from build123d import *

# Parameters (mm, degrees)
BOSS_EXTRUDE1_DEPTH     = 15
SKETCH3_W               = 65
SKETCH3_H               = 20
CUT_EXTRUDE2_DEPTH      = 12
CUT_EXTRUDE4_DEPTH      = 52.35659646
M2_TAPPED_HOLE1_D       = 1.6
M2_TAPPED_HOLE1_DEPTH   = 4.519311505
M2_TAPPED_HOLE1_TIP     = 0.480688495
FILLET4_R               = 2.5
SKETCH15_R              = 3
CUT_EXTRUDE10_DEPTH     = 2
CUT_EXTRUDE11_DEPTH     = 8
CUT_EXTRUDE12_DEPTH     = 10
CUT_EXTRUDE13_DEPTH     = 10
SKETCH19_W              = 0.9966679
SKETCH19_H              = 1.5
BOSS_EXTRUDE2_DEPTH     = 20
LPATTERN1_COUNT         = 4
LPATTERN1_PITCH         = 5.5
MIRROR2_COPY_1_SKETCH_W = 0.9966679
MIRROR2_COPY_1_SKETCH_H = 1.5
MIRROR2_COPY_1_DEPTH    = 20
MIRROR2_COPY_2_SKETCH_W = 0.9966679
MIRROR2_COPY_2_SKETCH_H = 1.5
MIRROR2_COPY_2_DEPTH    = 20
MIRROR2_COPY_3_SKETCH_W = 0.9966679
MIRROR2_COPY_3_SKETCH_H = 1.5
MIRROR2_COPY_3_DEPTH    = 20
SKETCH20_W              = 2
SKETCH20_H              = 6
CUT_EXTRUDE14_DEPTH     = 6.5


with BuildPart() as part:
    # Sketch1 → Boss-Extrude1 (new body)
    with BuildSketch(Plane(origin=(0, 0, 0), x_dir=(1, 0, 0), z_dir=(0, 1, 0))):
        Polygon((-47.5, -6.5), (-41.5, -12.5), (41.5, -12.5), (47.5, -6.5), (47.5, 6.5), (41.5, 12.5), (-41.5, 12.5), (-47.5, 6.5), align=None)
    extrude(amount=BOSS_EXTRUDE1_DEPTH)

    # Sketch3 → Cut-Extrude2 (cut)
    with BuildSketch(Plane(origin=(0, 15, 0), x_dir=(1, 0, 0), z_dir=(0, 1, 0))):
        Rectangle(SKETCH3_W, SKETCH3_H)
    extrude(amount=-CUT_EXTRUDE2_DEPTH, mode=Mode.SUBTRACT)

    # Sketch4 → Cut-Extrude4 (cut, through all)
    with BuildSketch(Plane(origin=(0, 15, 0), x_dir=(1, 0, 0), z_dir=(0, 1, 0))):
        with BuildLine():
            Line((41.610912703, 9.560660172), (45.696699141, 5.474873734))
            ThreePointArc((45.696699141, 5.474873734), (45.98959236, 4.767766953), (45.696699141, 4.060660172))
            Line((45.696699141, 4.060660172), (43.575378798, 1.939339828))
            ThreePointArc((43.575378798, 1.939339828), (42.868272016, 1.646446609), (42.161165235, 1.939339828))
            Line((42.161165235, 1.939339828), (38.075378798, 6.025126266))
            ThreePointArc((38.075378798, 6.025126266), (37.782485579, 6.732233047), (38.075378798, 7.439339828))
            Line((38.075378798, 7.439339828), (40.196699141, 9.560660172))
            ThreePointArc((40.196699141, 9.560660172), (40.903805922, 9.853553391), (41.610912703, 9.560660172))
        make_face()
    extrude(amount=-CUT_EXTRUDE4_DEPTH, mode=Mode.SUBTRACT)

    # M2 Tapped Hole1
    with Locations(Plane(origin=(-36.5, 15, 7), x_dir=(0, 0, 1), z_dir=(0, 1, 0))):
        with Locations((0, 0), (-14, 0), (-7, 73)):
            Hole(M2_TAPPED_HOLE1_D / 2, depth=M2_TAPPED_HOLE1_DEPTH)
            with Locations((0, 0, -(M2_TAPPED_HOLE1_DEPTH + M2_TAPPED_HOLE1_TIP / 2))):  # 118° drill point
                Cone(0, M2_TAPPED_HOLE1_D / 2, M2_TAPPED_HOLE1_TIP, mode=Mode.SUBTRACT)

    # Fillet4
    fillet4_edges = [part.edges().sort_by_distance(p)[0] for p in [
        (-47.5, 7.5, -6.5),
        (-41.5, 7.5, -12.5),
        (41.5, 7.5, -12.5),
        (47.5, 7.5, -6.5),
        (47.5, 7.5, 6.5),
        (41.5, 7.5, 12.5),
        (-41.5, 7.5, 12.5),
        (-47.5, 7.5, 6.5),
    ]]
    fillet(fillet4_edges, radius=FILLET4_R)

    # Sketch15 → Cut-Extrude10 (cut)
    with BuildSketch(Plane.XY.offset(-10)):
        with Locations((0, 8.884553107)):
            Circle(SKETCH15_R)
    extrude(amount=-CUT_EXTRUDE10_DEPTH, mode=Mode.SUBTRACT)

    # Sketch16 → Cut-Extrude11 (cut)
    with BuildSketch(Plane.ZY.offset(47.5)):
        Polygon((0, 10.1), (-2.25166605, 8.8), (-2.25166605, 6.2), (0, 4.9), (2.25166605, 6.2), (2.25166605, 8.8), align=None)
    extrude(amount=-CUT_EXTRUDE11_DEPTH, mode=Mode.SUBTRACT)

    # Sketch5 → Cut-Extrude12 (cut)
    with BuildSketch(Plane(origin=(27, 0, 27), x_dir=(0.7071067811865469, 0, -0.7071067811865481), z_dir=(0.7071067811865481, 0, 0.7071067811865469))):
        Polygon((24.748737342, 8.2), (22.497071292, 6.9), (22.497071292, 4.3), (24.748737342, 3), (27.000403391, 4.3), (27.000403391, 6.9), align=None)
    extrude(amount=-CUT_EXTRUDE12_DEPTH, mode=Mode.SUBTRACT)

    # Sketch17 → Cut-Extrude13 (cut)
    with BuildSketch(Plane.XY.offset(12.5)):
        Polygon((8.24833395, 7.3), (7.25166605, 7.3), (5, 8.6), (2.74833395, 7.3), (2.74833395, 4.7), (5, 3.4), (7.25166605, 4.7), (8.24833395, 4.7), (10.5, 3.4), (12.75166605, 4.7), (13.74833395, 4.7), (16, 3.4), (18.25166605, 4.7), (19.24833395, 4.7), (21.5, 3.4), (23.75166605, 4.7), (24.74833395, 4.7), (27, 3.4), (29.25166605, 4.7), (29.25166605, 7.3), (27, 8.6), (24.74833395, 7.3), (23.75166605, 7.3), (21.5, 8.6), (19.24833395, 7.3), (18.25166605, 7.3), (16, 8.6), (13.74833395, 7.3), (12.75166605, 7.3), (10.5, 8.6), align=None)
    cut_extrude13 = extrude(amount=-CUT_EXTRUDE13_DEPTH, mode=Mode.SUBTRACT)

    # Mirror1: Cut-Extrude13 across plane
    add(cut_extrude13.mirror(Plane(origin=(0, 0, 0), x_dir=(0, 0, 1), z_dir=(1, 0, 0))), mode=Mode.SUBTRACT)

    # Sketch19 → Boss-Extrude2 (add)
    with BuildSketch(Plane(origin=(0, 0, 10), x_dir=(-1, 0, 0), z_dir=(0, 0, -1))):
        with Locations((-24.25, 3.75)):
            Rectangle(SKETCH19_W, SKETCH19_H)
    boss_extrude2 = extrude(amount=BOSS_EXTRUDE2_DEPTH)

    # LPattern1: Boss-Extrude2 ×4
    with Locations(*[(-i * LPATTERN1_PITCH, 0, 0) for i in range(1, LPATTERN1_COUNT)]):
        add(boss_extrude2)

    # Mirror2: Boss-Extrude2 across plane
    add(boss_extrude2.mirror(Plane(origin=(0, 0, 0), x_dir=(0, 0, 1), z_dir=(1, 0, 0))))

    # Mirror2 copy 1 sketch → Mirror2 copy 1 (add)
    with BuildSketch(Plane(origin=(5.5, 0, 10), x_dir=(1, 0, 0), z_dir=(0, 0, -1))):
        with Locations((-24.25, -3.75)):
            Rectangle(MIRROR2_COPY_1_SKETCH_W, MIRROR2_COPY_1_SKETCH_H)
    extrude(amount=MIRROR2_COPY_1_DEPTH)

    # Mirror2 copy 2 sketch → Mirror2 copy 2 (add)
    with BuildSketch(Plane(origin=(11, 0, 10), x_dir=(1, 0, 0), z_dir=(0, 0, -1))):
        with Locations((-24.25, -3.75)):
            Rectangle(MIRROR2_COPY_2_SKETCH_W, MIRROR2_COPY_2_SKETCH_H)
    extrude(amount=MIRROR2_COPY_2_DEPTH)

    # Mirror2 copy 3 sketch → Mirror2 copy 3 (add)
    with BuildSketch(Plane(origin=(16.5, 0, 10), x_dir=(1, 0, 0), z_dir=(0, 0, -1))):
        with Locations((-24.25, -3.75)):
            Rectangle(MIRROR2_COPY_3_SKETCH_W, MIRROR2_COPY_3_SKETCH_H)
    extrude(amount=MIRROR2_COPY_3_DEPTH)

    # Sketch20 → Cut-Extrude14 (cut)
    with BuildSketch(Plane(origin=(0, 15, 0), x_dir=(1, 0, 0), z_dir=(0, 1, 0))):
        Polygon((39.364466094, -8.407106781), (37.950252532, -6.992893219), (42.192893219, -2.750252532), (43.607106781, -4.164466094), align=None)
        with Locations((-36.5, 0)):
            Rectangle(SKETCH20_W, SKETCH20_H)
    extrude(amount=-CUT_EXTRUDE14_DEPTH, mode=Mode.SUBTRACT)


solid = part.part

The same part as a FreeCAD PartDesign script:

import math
import FreeCAD as App
import Part
import Sketcher
Q = App.Units.Quantity


def edges_at(feature, points):
    """Names of the edges that pass closest to the given points."""
    edges = feature.Shape.Edges
    near = lambda p: min(range(len(edges)), key=lambda i: edges[i].distToShape(Part.Vertex(*p))[0])
    return sorted({f"Edge{near(p) + 1}" for p in points})

doc = App.newDocument("Part")
body = doc.addObject("PartDesign::Body", "Body")

# Sketch on XZ plane
sketch1 = doc.addObject("Sketcher::SketchObject", "Sketch")
body.addObject(sketch1)
sketch1.AttachmentSupport = (doc.XZ_Plane, [""])
sketch1.MapMode = "FlatFace"
sketch1.addGeometry([
    Part.LineSegment(App.Vector(-48, 6, 0), App.Vector(-42, 12, 0)),  # 0
    Part.LineSegment(App.Vector(-42, 12, 0), App.Vector(42, 12, 0)),  # 1
    Part.LineSegment(App.Vector(42, 12, 0), App.Vector(48, 6, 0)),  # 2
    Part.LineSegment(App.Vector(48, 6, 0), App.Vector(48, -6, 0)),  # 3
    Part.LineSegment(App.Vector(48, -6, 0), App.Vector(42, -12, 0)),  # 4
    Part.LineSegment(App.Vector(42, -12, 0), App.Vector(-42, -12, 0)),  # 5
    Part.LineSegment(App.Vector(-42, -12, 0), App.Vector(-48, -6, 0)),  # 6
    Part.LineSegment(App.Vector(-48, -6, 0), App.Vector(-48, 6, 0)),  # 7
], False)
sketch1.addConstraint([
    Sketcher.Constraint("Coincident", 0, 2, 1, 1),
    Sketcher.Constraint("Coincident", 1, 2, 2, 1),
    Sketcher.Constraint("Coincident", 2, 2, 3, 1),
    Sketcher.Constraint("Coincident", 3, 2, 4, 1),
    Sketcher.Constraint("Coincident", 4, 2, 5, 1),
    Sketcher.Constraint("Coincident", 5, 2, 6, 1),
    Sketcher.Constraint("Coincident", 6, 2, 7, 1),
    Sketcher.Constraint("Coincident", 7, 2, 0, 1),
    Sketcher.Constraint("Horizontal", 1),
    Sketcher.Constraint("Vertical", 3),
    Sketcher.Constraint("Horizontal", 5),
    Sketcher.Constraint("Vertical", 7),
    Sketcher.Constraint("Symmetric", 0, 2, 4, 2, -1, 1),
    Sketcher.Constraint("Symmetric", 2, 2, 6, 2, -1, 1),
    Sketcher.Constraint("Perpendicular", 0, 2),
    Sketcher.Constraint("Perpendicular", 2, 4),
    Sketcher.Constraint("Perpendicular", 4, 6),
    Sketcher.Constraint("Horizontal", 3, 2, 6, 2),
    Sketcher.Constraint("Vertical", 1, 2, 4, 2),
    Sketcher.Constraint("DistanceX", 1, 1, 1, 2, 83.0),
    Sketcher.Constraint("DistanceY", 3, 2, 3, 1, 13.0),
    Sketcher.Constraint("DistanceX", 1, 2, 2, 2, 6.0),
])
pad1 = doc.addObject("PartDesign::Pad", "Pad")
body.addObject(pad1)
pad1.Profile = sketch1
pad1.Length = 15
pad1.Reversed = True

# Sketch on XZ plane
sketch2 = doc.addObject("Sketcher::SketchObject", "Sketch001")
body.addObject(sketch2)
sketch2.AttachmentSupport = (doc.XZ_Plane, [""])
sketch2.MapMode = "FlatFace"
sketch2.AttachmentOffset = App.Placement(App.Vector(0, 0, -15), App.Rotation())
sketch2.addGeometry([
    Part.LineSegment(App.Vector(-32, -10, 0), App.Vector(-32, 10, 0)),
    Part.LineSegment(App.Vector(-32, 10, 0), App.Vector(32, 10, 0)),
    Part.LineSegment(App.Vector(32, 10, 0), App.Vector(32, -10, 0)),
    Part.LineSegment(App.Vector(32, -10, 0), App.Vector(-32, -10, 0)),
], False)
sketch2.addConstraint([
    Sketcher.Constraint("Coincident", 0, 2, 1, 1),
    Sketcher.Constraint("Coincident", 1, 2, 2, 1),
    Sketcher.Constraint("Coincident", 2, 2, 3, 1),
    Sketcher.Constraint("Coincident", 3, 2, 0, 1),
    Sketcher.Constraint("Vertical", 0),
    Sketcher.Constraint("Horizontal", 1),
    Sketcher.Constraint("Vertical", 2),
    Sketcher.Constraint("Horizontal", 3),
    Sketcher.Constraint("Symmetric", 0, 2, 2, 2, -1, 1),
    Sketcher.Constraint("DistanceX", 1, 1, 1, 2, 65.0),
    Sketcher.Constraint("DistanceY", 0, 1, 0, 2, 20.0),
])
pocket1 = doc.addObject("PartDesign::Pocket", "Pocket")
body.addObject(pocket1)
pocket1.Profile = sketch2
pocket1.Length = 12
pocket1.Reversed = True

# Sketch on XZ plane
sketch3 = doc.addObject("Sketcher::SketchObject", "Sketch002")
body.addObject(sketch3)
sketch3.AttachmentSupport = (doc.XZ_Plane, [""])
sketch3.MapMode = "FlatFace"
sketch3.AttachmentOffset = App.Placement(App.Vector(0, 0, -15), App.Rotation())
sketch3.addGeometry([
    Part.LineSegment(App.Vector(45.7, -5.5, 0), App.Vector(41.6, -9.6, 0)),  # 0
    Part.ArcOfCircle(Part.Circle(App.Vector(40.9, -8.9, 0), App.Vector(0, 0, 1), 1), math.radians(-135), math.radians(-45)),  # 1
    Part.LineSegment(App.Vector(40.2, -9.6, 0), App.Vector(38.1, -7.4, 0)),  # 2
    Part.ArcOfCircle(Part.Circle(App.Vector(38.8, -6.7, 0), App.Vector(0, 0, 1), 1), math.radians(135), math.radians(225)),  # 3
    Part.LineSegment(App.Vector(38.1, -6, 0), App.Vector(42.2, -1.9, 0)),  # 4
    Part.ArcOfCircle(Part.Circle(App.Vector(42.9, -2.6, 0), App.Vector(0, 0, 1), 1), math.radians(45), math.radians(135)),  # 5
    Part.LineSegment(App.Vector(43.6, -1.9, 0), App.Vector(45.7, -4.1, 0)),  # 6
    Part.ArcOfCircle(Part.Circle(App.Vector(45, -4.8, 0), App.Vector(0, 0, 1), 1), math.radians(-45), math.radians(45)),  # 7
], False)
sketch3.addConstraint([
    Sketcher.Constraint("Tangent", 0, 2, 1, 2),
    Sketcher.Constraint("Tangent", 1, 1, 2, 1),
    Sketcher.Constraint("Tangent", 2, 2, 3, 2),
    Sketcher.Constraint("Tangent", 3, 1, 4, 1),
    Sketcher.Constraint("Tangent", 4, 2, 5, 2),
    Sketcher.Constraint("Tangent", 5, 1, 6, 1),
    Sketcher.Constraint("Tangent", 6, 2, 7, 2),
    Sketcher.Constraint("Tangent", 7, 1, 0, 1),
    Sketcher.Constraint("Equal", 1, 3),
    Sketcher.Constraint("Equal", 3, 5),
    Sketcher.Constraint("Equal", 5, 7),
    Sketcher.Constraint("Perpendicular", 0, 2),
    Sketcher.Constraint("Perpendicular", 2, 4),
    Sketcher.Constraint("Perpendicular", 4, 6),
    Sketcher.Constraint("Horizontal", 0, 2, 1, 1),
    Sketcher.Constraint("Radius", 1, 1.0),
    Sketcher.Constraint("Distance", 2, 3.0),
    Sketcher.Constraint("DistanceY", 2, 2, 4, 2, 5.5),
    Sketcher.Constraint("DistanceX", -1, 1, 1, 1, 40.196699),
    Sketcher.Constraint("DistanceY", 0, 2, -1, 1, 9.56066),
])
pocket2 = doc.addObject("PartDesign::Pocket", "Pocket001")
body.addObject(pocket2)
pocket2.Profile = sketch3
pocket2.Type = "ThroughAll"
pocket2.Reversed = True

# Sketch on XZ plane
sketch4 = doc.addObject("Sketcher::SketchObject", "Sketch003")
body.addObject(sketch4)
sketch4.AttachmentSupport = (doc.XZ_Plane, [""])
sketch4.MapMode = "FlatFace"
sketch4.AttachmentOffset = App.Placement(App.Vector(0, 0, -15), App.Rotation())
sketch4.addGeometry([
    Part.Circle(App.Vector(-36.5, 7, 0), App.Vector(0, 0, 1), 0.8),
    Part.Circle(App.Vector(-36.5, -7, 0), App.Vector(0, 0, 1), 0.8),
    Part.Circle(App.Vector(36.5, 0, 0), App.Vector(0, 0, 1), 0.8),
], False)
sketch4.addConstraint([
    Sketcher.Constraint("Equal", 0, 1),
    Sketcher.Constraint("Equal", 1, 2),
    Sketcher.Constraint("Symmetric", 0, 3, 1, 3, -1),
    Sketcher.Constraint("PointOnObject", 2, 3, -1),
    Sketcher.Constraint("Diameter", 0, 1.6),
    Sketcher.Constraint("DistanceY", -1, 1, 0, 3, 7.0),
    Sketcher.Constraint("DistanceX", 0, 3, 2, 3, 73.0),
    Sketcher.Constraint("DistanceX", 0, 3, -1, 1, 36.5),
])
doc.recompute()
hole = doc.addObject("PartDesign::Hole", "Hole")
body.addObject(hole)
hole.Profile = sketch4
hole.ThreadType = "None"
hole.Diameter = 1.6
hole.DepthType = "Dimension"
hole.Depth = 4.519312
hole.DrillPoint = "Angled"
hole.DrillPointAngle = 118
hole.Reversed = True
doc.recompute()

fillet = doc.addObject("PartDesign::Fillet", "Fillet")
body.addObject(fillet)
fillet.Base = (hole, edges_at(hole, [
    (-47.5, 7.5, -6.5),
    (-41.5, 7.5, -12.5),
    (41.5, 7.5, -12.5),
    (47.5, 7.5, -6.5),
    (47.5, 7.5, 6.5),
    (41.5, 7.5, 12.5),
    (-41.5, 7.5, 12.5),
    (-47.5, 7.5, 6.5),
]))
fillet.Radius = 2.5

# Sketch on XY plane
sketch5 = doc.addObject("Sketcher::SketchObject", "Sketch004")
body.addObject(sketch5)
sketch5.AttachmentSupport = (doc.XY_Plane, [""])
sketch5.MapMode = "FlatFace"
sketch5.AttachmentOffset = App.Placement(App.Vector(0, 0, -10), App.Rotation())
sketch5.addGeometry(Part.Circle(App.Vector(0, 8.9, 0), App.Vector(0, 0, 1), 3), False)
sketch5.addConstraint([
    Sketcher.Constraint("PointOnObject", 0, 3, -2),
    Sketcher.Constraint("Diameter", 0, 6.0),
    Sketcher.Constraint("DistanceY", -1, 1, 0, 3, 8.884553),
])
pocket3 = doc.addObject("PartDesign::Pocket", "Pocket002")
body.addObject(pocket3)
pocket3.Profile = sketch5
pocket3.Length = 2

# Sketch on YZ plane
sketch6 = doc.addObject("Sketcher::SketchObject", "Sketch005")
body.addObject(sketch6)
sketch6.AttachmentSupport = (doc.YZ_Plane, [""])
sketch6.MapMode = "FlatFace"
sketch6.AttachmentOffset = App.Placement(App.Vector(0, 0, -47.5), App.Rotation())
sketch6.addGeometry([
    Part.LineSegment(App.Vector(10.1, 0, 0), App.Vector(8.8, -2.3, 0)),  # 0
    Part.LineSegment(App.Vector(8.8, -2.3, 0), App.Vector(6.2, -2.3, 0)),  # 1
    Part.LineSegment(App.Vector(6.2, -2.3, 0), App.Vector(4.9, 0, 0)),  # 2
    Part.LineSegment(App.Vector(4.9, 0, 0), App.Vector(6.2, 2.3, 0)),  # 3
    Part.LineSegment(App.Vector(6.2, 2.3, 0), App.Vector(8.8, 2.3, 0)),  # 4
    Part.LineSegment(App.Vector(8.8, 2.3, 0), App.Vector(10.1, 0, 0)),  # 5
], False)
sketch6.addConstraint([
    Sketcher.Constraint("Coincident", 0, 2, 1, 1),
    Sketcher.Constraint("Coincident", 1, 2, 2, 1),
    Sketcher.Constraint("Coincident", 2, 2, 3, 1),
    Sketcher.Constraint("Coincident", 3, 2, 4, 1),
    Sketcher.Constraint("Coincident", 4, 2, 5, 1),
    Sketcher.Constraint("Coincident", 5, 2, 0, 1),
    Sketcher.Constraint("Horizontal", 1),
    Sketcher.Constraint("Horizontal", 4),
    Sketcher.Constraint("Symmetric", 1, 2, 3, 2, -1),
    Sketcher.Constraint("PointOnObject", 2, 2, -1),
    Sketcher.Constraint("PointOnObject", 5, 2, -1),
    Sketcher.Constraint("Parallel", 0, 3),
    Sketcher.Constraint("Parallel", 2, 5),
    Sketcher.Constraint("Angle", 0, Q("-120 deg")),
    Sketcher.Constraint("DistanceX", 1, 2, 1, 1, 2.6),
    Sketcher.Constraint("Distance", 0, 2.6),
    Sketcher.Constraint("DistanceX", -1, 1, 0, 2, 8.8),
])
pocket4 = doc.addObject("PartDesign::Pocket", "Pocket003")
body.addObject(pocket4)
pocket4.Profile = sketch6
pocket4.Length = 8
pocket4.Reversed = True

# Sketch on an angled plane
sketch7 = doc.addObject("Sketcher::SketchObject", "Sketch006")
body.addObject(sketch7)
sketch7.Placement = App.Placement(App.Vector(27, 0, 27), App.Rotation(App.Vector(0.707106781, 0, -0.707106781), App.Vector(0, 0.999999999, 0), App.Vector(0.707106781, 0, 0.707106781), "ZXY"))
sketch7.addGeometry([
    Part.LineSegment(App.Vector(24.7, 8.2, 0), App.Vector(22.5, 6.9, 0)),  # 0
    Part.LineSegment(App.Vector(22.5, 6.9, 0), App.Vector(22.5, 4.3, 0)),  # 1
    Part.LineSegment(App.Vector(22.5, 4.3, 0), App.Vector(24.7, 3, 0)),  # 2
    Part.LineSegment(App.Vector(24.7, 3, 0), App.Vector(27, 4.3, 0)),  # 3
    Part.LineSegment(App.Vector(27, 4.3, 0), App.Vector(27, 6.9, 0)),  # 4
    Part.LineSegment(App.Vector(27, 6.9, 0), App.Vector(24.7, 8.2, 0)),  # 5
], False)
sketch7.addConstraint([
    Sketcher.Constraint("Coincident", 0, 2, 1, 1),
    Sketcher.Constraint("Coincident", 1, 2, 2, 1),
    Sketcher.Constraint("Coincident", 2, 2, 3, 1),
    Sketcher.Constraint("Coincident", 3, 2, 4, 1),
    Sketcher.Constraint("Coincident", 4, 2, 5, 1),
    Sketcher.Constraint("Coincident", 5, 2, 0, 1),
    Sketcher.Constraint("Vertical", 1),
    Sketcher.Constraint("Vertical", 4),
    Sketcher.Constraint("Parallel", 0, 3),
    Sketcher.Constraint("Parallel", 2, 5),
    Sketcher.Constraint("Horizontal", 1, 2, 3, 2),
    Sketcher.Constraint("Horizontal", 0, 2, 4, 2),
    Sketcher.Constraint("Vertical", 2, 2, 5, 2),
    Sketcher.Constraint("Angle", 0, Q("-150 deg")),
    Sketcher.Constraint("DistanceY", 1, 2, 1, 1, 2.6),
    Sketcher.Constraint("DistanceY", -1, 1, 2, 2, 3.0),
    Sketcher.Constraint("Distance", 0, 2.6),
    Sketcher.Constraint("DistanceX", -1, 1, 0, 2, 22.497071),
])
pocket5 = doc.addObject("PartDesign::Pocket", "Pocket004")
body.addObject(pocket5)
pocket5.Profile = sketch7
pocket5.Length = 10

# Sketch on XY plane
sketch8 = doc.addObject("Sketcher::SketchObject", "Sketch007")
body.addObject(sketch8)
sketch8.AttachmentSupport = (doc.XY_Plane, [""])
sketch8.MapMode = "FlatFace"
sketch8.AttachmentOffset = App.Placement(App.Vector(0, 0, 12.5), App.Rotation())
sketch8.addGeometry([
    Part.LineSegment(App.Vector(8.2, 7.3, 0), App.Vector(7.3, 7.3, 0)),  # 0
    Part.LineSegment(App.Vector(7.3, 7.3, 0), App.Vector(5, 8.6, 0)),  # 1
    Part.LineSegment(App.Vector(5, 8.6, 0), App.Vector(2.7, 7.3, 0)),  # 2
    Part.LineSegment(App.Vector(2.7, 7.3, 0), App.Vector(2.7, 4.7, 0)),  # 3
    Part.LineSegment(App.Vector(2.7, 4.7, 0), App.Vector(5, 3.4, 0)),  # 4
    Part.LineSegment(App.Vector(5, 3.4, 0), App.Vector(7.3, 4.7, 0)),  # 5
    Part.LineSegment(App.Vector(7.3, 4.7, 0), App.Vector(8.2, 4.7, 0)),  # 6
    Part.LineSegment(App.Vector(8.2, 4.7, 0), App.Vector(10.5, 3.4, 0)),  # 7
    Part.LineSegment(App.Vector(10.5, 3.4, 0), App.Vector(12.8, 4.7, 0)),  # 8
    Part.LineSegment(App.Vector(12.8, 4.7, 0), App.Vector(13.7, 4.7, 0)),  # 9
    Part.LineSegment(App.Vector(13.7, 4.7, 0), App.Vector(16, 3.4, 0)),  # 10
    Part.LineSegment(App.Vector(16, 3.4, 0), App.Vector(18.3, 4.7, 0)),  # 11
    Part.LineSegment(App.Vector(18.3, 4.7, 0), App.Vector(19.2, 4.7, 0)),  # 12
    Part.LineSegment(App.Vector(19.2, 4.7, 0), App.Vector(21.5, 3.4, 0)),  # 13
    Part.LineSegment(App.Vector(21.5, 3.4, 0), App.Vector(23.8, 4.7, 0)),  # 14
    Part.LineSegment(App.Vector(23.8, 4.7, 0), App.Vector(24.7, 4.7, 0)),  # 15
    Part.LineSegment(App.Vector(24.7, 4.7, 0), App.Vector(27, 3.4, 0)),  # 16
    Part.LineSegment(App.Vector(27, 3.4, 0), App.Vector(29.3, 4.7, 0)),  # 17
    Part.LineSegment(App.Vector(29.3, 4.7, 0), App.Vector(29.3, 7.3, 0)),  # 18
    Part.LineSegment(App.Vector(29.3, 7.3, 0), App.Vector(27, 8.6, 0)),  # 19
    Part.LineSegment(App.Vector(27, 8.6, 0), App.Vector(24.7, 7.3, 0)),  # 20
    Part.LineSegment(App.Vector(24.7, 7.3, 0), App.Vector(23.8, 7.3, 0)),  # 21
    Part.LineSegment(App.Vector(23.8, 7.3, 0), App.Vector(21.5, 8.6, 0)),  # 22
    Part.LineSegment(App.Vector(21.5, 8.6, 0), App.Vector(19.2, 7.3, 0)),  # 23
    Part.LineSegment(App.Vector(19.2, 7.3, 0), App.Vector(18.3, 7.3, 0)),  # 24
    Part.LineSegment(App.Vector(18.3, 7.3, 0), App.Vector(16, 8.6, 0)),  # 25
    Part.LineSegment(App.Vector(16, 8.6, 0), App.Vector(13.7, 7.3, 0)),  # 26
    Part.LineSegment(App.Vector(13.7, 7.3, 0), App.Vector(12.8, 7.3, 0)),  # 27
    Part.LineSegment(App.Vector(12.8, 7.3, 0), App.Vector(10.5, 8.6, 0)),  # 28
    Part.LineSegment(App.Vector(10.5, 8.6, 0), App.Vector(8.2, 7.3, 0)),  # 29
], False)
sketch8.addConstraint([
    Sketcher.Constraint("Coincident", 0, 2, 1, 1),
    Sketcher.Constraint("Coincident", 1, 2, 2, 1),
    Sketcher.Constraint("Coincident", 2, 2, 3, 1),
    Sketcher.Constraint("Coincident", 3, 2, 4, 1),
    Sketcher.Constraint("Coincident", 4, 2, 5, 1),
    Sketcher.Constraint("Coincident", 5, 2, 6, 1),
    Sketcher.Constraint("Coincident", 6, 2, 7, 1),
    Sketcher.Constraint("Coincident", 7, 2, 8, 1),
    Sketcher.Constraint("Coincident", 8, 2, 9, 1),
    Sketcher.Constraint("Coincident", 9, 2, 10, 1),
    Sketcher.Constraint("Coincident", 10, 2, 11, 1),
    Sketcher.Constraint("Coincident", 11, 2, 12, 1),
    Sketcher.Constraint("Coincident", 12, 2, 13, 1),
    Sketcher.Constraint("Coincident", 13, 2, 14, 1),
    Sketcher.Constraint("Coincident", 14, 2, 15, 1),
    Sketcher.Constraint("Coincident", 15, 2, 16, 1),
    Sketcher.Constraint("Coincident", 16, 2, 17, 1),
    Sketcher.Constraint("Coincident", 17, 2, 18, 1),
    Sketcher.Constraint("Coincident", 18, 2, 19, 1),
    Sketcher.Constraint("Coincident", 19, 2, 20, 1),
    Sketcher.Constraint("Coincident", 20, 2, 21, 1),
    Sketcher.Constraint("Coincident", 21, 2, 22, 1),
    Sketcher.Constraint("Coincident", 22, 2, 23, 1),
    Sketcher.Constraint("Coincident", 23, 2, 24, 1),
    Sketcher.Constraint("Coincident", 24, 2, 25, 1),
    Sketcher.Constraint("Coincident", 25, 2, 26, 1),
    Sketcher.Constraint("Coincident", 26, 2, 27, 1),
    Sketcher.Constraint("Coincident", 27, 2, 28, 1),
    Sketcher.Constraint("Coincident", 28, 2, 29, 1),
    Sketcher.Constraint("Coincident", 29, 2, 0, 1),
    Sketcher.Constraint("Horizontal", 0),
    Sketcher.Constraint("Vertical", 3),
    Sketcher.Constraint("Horizontal", 6),
    Sketcher.Constraint("Horizontal", 9),
    Sketcher.Constraint("Horizontal", 12),
    Sketcher.Constraint("Horizontal", 15),
    Sketcher.Constraint("Vertical", 18),
    Sketcher.Constraint("Horizontal", 21),
    Sketcher.Constraint("Horizontal", 24),
    Sketcher.Constraint("Horizontal", 27),
    Sketcher.Constraint("Parallel", 1, 4),
    Sketcher.Constraint("Parallel", 2, 5),
    Sketcher.Constraint("Parallel", 4, 7),
    Sketcher.Constraint("Parallel", 5, 8),
    Sketcher.Constraint("Parallel", 7, 10),
    Sketcher.Constraint("Parallel", 8, 11),
    Sketcher.Constraint("Parallel", 10, 13),
    Sketcher.Constraint("Parallel", 11, 14),
    Sketcher.Constraint("Parallel", 13, 16),
    Sketcher.Constraint("Parallel", 14, 17),
    Sketcher.Constraint("Parallel", 16, 19),
    Sketcher.Constraint("Parallel", 17, 20),
    Sketcher.Constraint("Parallel", 19, 22),
    Sketcher.Constraint("Parallel", 20, 23),
    Sketcher.Constraint("Parallel", 22, 25),
    Sketcher.Constraint("Parallel", 23, 26),
    Sketcher.Constraint("Parallel", 25, 28),
    Sketcher.Constraint("Parallel", 26, 29),
    Sketcher.Constraint("Horizontal", 0, 2, 2, 2),
    Sketcher.Constraint("Horizontal", 3, 2, 5, 2),
    Sketcher.Constraint("Horizontal", 4, 2, 7, 2),
    Sketcher.Constraint("Horizontal", 6, 2, 8, 2),
    Sketcher.Constraint("Horizontal", 7, 2, 10, 2),
    Sketcher.Constraint("Horizontal", 9, 2, 11, 2),
    Sketcher.Constraint("Horizontal", 10, 2, 13, 2),
    Sketcher.Constraint("Horizontal", 12, 2, 14, 2),
    Sketcher.Constraint("Horizontal", 13, 2, 16, 2),
    Sketcher.Constraint("Horizontal", 15, 2, 17, 2),
    Sketcher.Constraint("Horizontal", 2, 2, 18, 2),
    Sketcher.Constraint("Horizontal", 1, 2, 19, 2),
    Sketcher.Constraint("Horizontal", 18, 2, 20, 2),
    Sketcher.Constraint("Horizontal", 19, 2, 22, 2),
    Sketcher.Constraint("Horizontal", 21, 2, 23, 2),
    Sketcher.Constraint("Horizontal", 22, 2, 25, 2),
    Sketcher.Constraint("Horizontal", 24, 2, 26, 2),
    Sketcher.Constraint("Horizontal", 25, 2, 28, 2),
    Sketcher.Constraint("Vertical", 1, 2, 4, 2),
    Sketcher.Constraint("Vertical", 0, 2, 5, 2),
    Sketcher.Constraint("Vertical", 14, 2, 21, 2),
    Sketcher.Constraint("Vertical", 11, 2, 24, 2),
    Sketcher.Constraint("Vertical", 8, 2, 27, 2),
    Sketcher.Constraint("Equal", 6, 9),
    Sketcher.Constraint("Equal", 9, 12),
    Sketcher.Constraint("Equal", 12, 15),
    Sketcher.Constraint("Angle", 1, Q("150 deg")),
    Sketcher.Constraint("DistanceY", 3, 2, 3, 1, 2.6),
    Sketcher.Constraint("DistanceX", -1, 1, 1, 2, 5.0),
    Sketcher.Constraint("DistanceX", -1, 1, 10, 2, 16.0),
    Sketcher.Constraint("Distance", 1, 2.6),
    Sketcher.Constraint("DistanceY", -1, 1, 0, 2, 7.3),
])
pocket6 = doc.addObject("PartDesign::Pocket", "Pocket005")
body.addObject(pocket6)
pocket6.Profile = sketch8
pocket6.Length = 10
doc.recompute()

mirrored = doc.addObject("PartDesign::Mirrored", "Mirrored")
body.addObject(mirrored)
mirrored.Originals = [pocket6]
mirrored.MirrorPlane = (doc.YZ_Plane, [""])
body.Tip = mirrored

# Sketch on XY plane
sketch9 = doc.addObject("Sketcher::SketchObject", "Sketch008")
body.addObject(sketch9)
sketch9.AttachmentSupport = (doc.XY_Plane, [""])
sketch9.MapMode = "FlatFace"
sketch9.AttachmentOffset = App.Placement(App.Vector(0, 0, 10), App.Rotation())
sketch9.addGeometry([
    Part.LineSegment(App.Vector(24.7, 4.5, 0), App.Vector(24.7, 3, 0)),
    Part.LineSegment(App.Vector(24.7, 3, 0), App.Vector(23.8, 3, 0)),
    Part.LineSegment(App.Vector(23.8, 3, 0), App.Vector(23.8, 4.5, 0)),
    Part.LineSegment(App.Vector(23.8, 4.5, 0), App.Vector(24.7, 4.5, 0)),
], False)
sketch9.addConstraint([
    Sketcher.Constraint("Coincident", 0, 2, 1, 1),
    Sketcher.Constraint("Coincident", 1, 2, 2, 1),
    Sketcher.Constraint("Coincident", 2, 2, 3, 1),
    Sketcher.Constraint("Coincident", 3, 2, 0, 1),
    Sketcher.Constraint("Vertical", 0),
    Sketcher.Constraint("Horizontal", 1),
    Sketcher.Constraint("Vertical", 2),
    Sketcher.Constraint("Horizontal", 3),
    Sketcher.Constraint("DistanceY", 0, 2, 0, 1, 1.5),
    Sketcher.Constraint("DistanceY", -1, 1, 0, 2, 3.0),
    Sketcher.Constraint("DistanceX", 1, 2, 1, 1, 0.996668),
    Sketcher.Constraint("DistanceX", -1, 1, 0, 2, 24.748334),
])
pad2 = doc.addObject("PartDesign::Pad", "Pad001")
body.addObject(pad2)
pad2.Profile = sketch9
pad2.Length = 20
pad2.Reversed = True
doc.recompute()

linearpattern = doc.addObject("PartDesign::LinearPattern", "LinearPattern")
body.addObject(linearpattern)
linearpattern.Originals = [pad2]
linearpattern.Direction = (doc.X_Axis, [""])
linearpattern.Mode = "offset"
linearpattern.Offset = 5.5
linearpattern.Occurrences = 4
linearpattern.Reversed = True
body.Tip = linearpattern
doc.recompute()

mirrored2 = doc.addObject("PartDesign::Mirrored", "Mirrored001")
body.addObject(mirrored2)
mirrored2.Originals = [pad2]
mirrored2.MirrorPlane = (doc.YZ_Plane, [""])
body.Tip = mirrored2

# Sketch on XY plane
sketch10 = doc.addObject("Sketcher::SketchObject", "Sketch009")
body.addObject(sketch10)
sketch10.AttachmentSupport = (doc.XY_Plane, [""])
sketch10.MapMode = "FlatFace"
sketch10.AttachmentOffset = App.Placement(App.Vector(0, 0, 10), App.Rotation())
sketch10.addGeometry([
    Part.LineSegment(App.Vector(-19.2, 3, 0), App.Vector(-19.2, 4.5, 0)),
    Part.LineSegment(App.Vector(-19.2, 4.5, 0), App.Vector(-18.3, 4.5, 0)),
    Part.LineSegment(App.Vector(-18.3, 4.5, 0), App.Vector(-18.3, 3, 0)),
    Part.LineSegment(App.Vector(-18.3, 3, 0), App.Vector(-19.2, 3, 0)),
], False)
sketch10.addConstraint([
    Sketcher.Constraint("Coincident", 0, 2, 1, 1),
    Sketcher.Constraint("Coincident", 1, 2, 2, 1),
    Sketcher.Constraint("Coincident", 2, 2, 3, 1),
    Sketcher.Constraint("Coincident", 3, 2, 0, 1),
    Sketcher.Constraint("Vertical", 0),
    Sketcher.Constraint("Horizontal", 1),
    Sketcher.Constraint("Vertical", 2),
    Sketcher.Constraint("Horizontal", 3),
    Sketcher.Constraint("DistanceY", 0, 1, 0, 2, 1.5),
    Sketcher.Constraint("DistanceY", -1, 1, 2, 2, 3.0),
    Sketcher.Constraint("DistanceX", 1, 1, 1, 2, 0.996668),
    Sketcher.Constraint("DistanceX", 0, 2, -1, 1, 19.248334),
])
pad3 = doc.addObject("PartDesign::Pad", "Pad002")
body.addObject(pad3)
pad3.Profile = sketch10
pad3.Length = 20
pad3.Reversed = True

# Sketch on XY plane
sketch11 = doc.addObject("Sketcher::SketchObject", "Sketch010")
body.addObject(sketch11)
sketch11.AttachmentSupport = (doc.XY_Plane, [""])
sketch11.MapMode = "FlatFace"
sketch11.AttachmentOffset = App.Placement(App.Vector(0, 0, 10), App.Rotation())
sketch11.addGeometry([
    Part.LineSegment(App.Vector(-13.7, 3, 0), App.Vector(-13.7, 4.5, 0)),
    Part.LineSegment(App.Vector(-13.7, 4.5, 0), App.Vector(-12.8, 4.5, 0)),
    Part.LineSegment(App.Vector(-12.8, 4.5, 0), App.Vector(-12.8, 3, 0)),
    Part.LineSegment(App.Vector(-12.8, 3, 0), App.Vector(-13.7, 3, 0)),
], False)
sketch11.addConstraint([
    Sketcher.Constraint("Coincident", 0, 2, 1, 1),
    Sketcher.Constraint("Coincident", 1, 2, 2, 1),
    Sketcher.Constraint("Coincident", 2, 2, 3, 1),
    Sketcher.Constraint("Coincident", 3, 2, 0, 1),
    Sketcher.Constraint("Vertical", 0),
    Sketcher.Constraint("Horizontal", 1),
    Sketcher.Constraint("Vertical", 2),
    Sketcher.Constraint("Horizontal", 3),
    Sketcher.Constraint("DistanceY", 0, 1, 0, 2, 1.5),
    Sketcher.Constraint("DistanceY", -1, 1, 2, 2, 3.0),
    Sketcher.Constraint("DistanceX", 1, 1, 1, 2, 0.996668),
    Sketcher.Constraint("DistanceX", 0, 2, -1, 1, 13.748334),
])
pad4 = doc.addObject("PartDesign::Pad", "Pad003")
body.addObject(pad4)
pad4.Profile = sketch11
pad4.Length = 20
pad4.Reversed = True

# Sketch on XY plane
sketch12 = doc.addObject("Sketcher::SketchObject", "Sketch011")
body.addObject(sketch12)
sketch12.AttachmentSupport = (doc.XY_Plane, [""])
sketch12.MapMode = "FlatFace"
sketch12.AttachmentOffset = App.Placement(App.Vector(0, 0, 10), App.Rotation())
sketch12.addGeometry([
    Part.LineSegment(App.Vector(-8.2, 3, 0), App.Vector(-8.2, 4.5, 0)),
    Part.LineSegment(App.Vector(-8.2, 4.5, 0), App.Vector(-7.3, 4.5, 0)),
    Part.LineSegment(App.Vector(-7.3, 4.5, 0), App.Vector(-7.3, 3, 0)),
    Part.LineSegment(App.Vector(-7.3, 3, 0), App.Vector(-8.2, 3, 0)),
], False)
sketch12.addConstraint([
    Sketcher.Constraint("Coincident", 0, 2, 1, 1),
    Sketcher.Constraint("Coincident", 1, 2, 2, 1),
    Sketcher.Constraint("Coincident", 2, 2, 3, 1),
    Sketcher.Constraint("Coincident", 3, 2, 0, 1),
    Sketcher.Constraint("Vertical", 0),
    Sketcher.Constraint("Horizontal", 1),
    Sketcher.Constraint("Vertical", 2),
    Sketcher.Constraint("Horizontal", 3),
    Sketcher.Constraint("DistanceY", 0, 1, 0, 2, 1.5),
    Sketcher.Constraint("DistanceY", -1, 1, 2, 2, 3.0),
    Sketcher.Constraint("DistanceX", 1, 1, 1, 2, 0.996668),
    Sketcher.Constraint("DistanceX", 0, 2, -1, 1, 8.248334),
])
pad5 = doc.addObject("PartDesign::Pad", "Pad004")
body.addObject(pad5)
pad5.Profile = sketch12
pad5.Length = 20
pad5.Reversed = True

# Sketch on XZ plane
sketch13 = doc.addObject("Sketcher::SketchObject", "Sketch012")
body.addObject(sketch13)
sketch13.AttachmentSupport = (doc.XZ_Plane, [""])
sketch13.MapMode = "FlatFace"
sketch13.AttachmentOffset = App.Placement(App.Vector(0, 0, -15), App.Rotation())
sketch13.addGeometry([
    Part.LineSegment(App.Vector(38, 7, 0), App.Vector(39.4, 8.4, 0)),  # 0
    Part.LineSegment(App.Vector(39.4, 8.4, 0), App.Vector(43.6, 4.2, 0)),  # 1
    Part.LineSegment(App.Vector(43.6, 4.2, 0), App.Vector(42.2, 2.8, 0)),  # 2
    Part.LineSegment(App.Vector(42.2, 2.8, 0), App.Vector(38, 7, 0)),  # 3
    Part.LineSegment(App.Vector(-37.5, -3, 0), App.Vector(-37.5, 3, 0)),  # 4
    Part.LineSegment(App.Vector(-37.5, 3, 0), App.Vector(-35.5, 3, 0)),  # 5
    Part.LineSegment(App.Vector(-35.5, 3, 0), App.Vector(-35.5, -3, 0)),  # 6
    Part.LineSegment(App.Vector(-35.5, -3, 0), App.Vector(-37.5, -3, 0)),  # 7
], False)
sketch13.addConstraint([
    Sketcher.Constraint("Coincident", 0, 2, 1, 1),
    Sketcher.Constraint("Coincident", 1, 2, 2, 1),
    Sketcher.Constraint("Coincident", 2, 2, 3, 1),
    Sketcher.Constraint("Coincident", 3, 2, 0, 1),
    Sketcher.Constraint("Coincident", 4, 2, 5, 1),
    Sketcher.Constraint("Coincident", 5, 2, 6, 1),
    Sketcher.Constraint("Coincident", 6, 2, 7, 1),
    Sketcher.Constraint("Coincident", 7, 2, 4, 1),
    Sketcher.Constraint("Vertical", 4),
    Sketcher.Constraint("Horizontal", 5),
    Sketcher.Constraint("Vertical", 6),
    Sketcher.Constraint("Horizontal", 7),
    Sketcher.Constraint("Perpendicular", 0, 1),
    Sketcher.Constraint("Perpendicular", 1, 2),
    Sketcher.Constraint("Perpendicular", 2, 3),
    Sketcher.Constraint("DistanceX", 5, 1, 5, 2, 2.0),
    Sketcher.Constraint("DistanceY", 4, 1, 4, 2, 6.0),
    Sketcher.Constraint("Angle", 0, Q("45 deg")),
    Sketcher.Constraint("Distance", 0, 2.0),
    Sketcher.Constraint("Distance", 1, 6.0),
    Sketcher.Constraint("DistanceY", -1, 1, 4, 2, 3.0),
    Sketcher.Constraint("DistanceX", 4, 2, -1, 1, 37.5),
    Sketcher.Constraint("DistanceX", -1, 1, 0, 2, 39.364466),
    Sketcher.Constraint("DistanceY", -1, 1, 0, 2, 8.407107),
])
pocket7 = doc.addObject("PartDesign::Pocket", "Pocket006")
body.addObject(pocket7)
pocket7.Profile = sketch13
pocket7.Length = 6.5
pocket7.Reversed = True

doc.recompute()
